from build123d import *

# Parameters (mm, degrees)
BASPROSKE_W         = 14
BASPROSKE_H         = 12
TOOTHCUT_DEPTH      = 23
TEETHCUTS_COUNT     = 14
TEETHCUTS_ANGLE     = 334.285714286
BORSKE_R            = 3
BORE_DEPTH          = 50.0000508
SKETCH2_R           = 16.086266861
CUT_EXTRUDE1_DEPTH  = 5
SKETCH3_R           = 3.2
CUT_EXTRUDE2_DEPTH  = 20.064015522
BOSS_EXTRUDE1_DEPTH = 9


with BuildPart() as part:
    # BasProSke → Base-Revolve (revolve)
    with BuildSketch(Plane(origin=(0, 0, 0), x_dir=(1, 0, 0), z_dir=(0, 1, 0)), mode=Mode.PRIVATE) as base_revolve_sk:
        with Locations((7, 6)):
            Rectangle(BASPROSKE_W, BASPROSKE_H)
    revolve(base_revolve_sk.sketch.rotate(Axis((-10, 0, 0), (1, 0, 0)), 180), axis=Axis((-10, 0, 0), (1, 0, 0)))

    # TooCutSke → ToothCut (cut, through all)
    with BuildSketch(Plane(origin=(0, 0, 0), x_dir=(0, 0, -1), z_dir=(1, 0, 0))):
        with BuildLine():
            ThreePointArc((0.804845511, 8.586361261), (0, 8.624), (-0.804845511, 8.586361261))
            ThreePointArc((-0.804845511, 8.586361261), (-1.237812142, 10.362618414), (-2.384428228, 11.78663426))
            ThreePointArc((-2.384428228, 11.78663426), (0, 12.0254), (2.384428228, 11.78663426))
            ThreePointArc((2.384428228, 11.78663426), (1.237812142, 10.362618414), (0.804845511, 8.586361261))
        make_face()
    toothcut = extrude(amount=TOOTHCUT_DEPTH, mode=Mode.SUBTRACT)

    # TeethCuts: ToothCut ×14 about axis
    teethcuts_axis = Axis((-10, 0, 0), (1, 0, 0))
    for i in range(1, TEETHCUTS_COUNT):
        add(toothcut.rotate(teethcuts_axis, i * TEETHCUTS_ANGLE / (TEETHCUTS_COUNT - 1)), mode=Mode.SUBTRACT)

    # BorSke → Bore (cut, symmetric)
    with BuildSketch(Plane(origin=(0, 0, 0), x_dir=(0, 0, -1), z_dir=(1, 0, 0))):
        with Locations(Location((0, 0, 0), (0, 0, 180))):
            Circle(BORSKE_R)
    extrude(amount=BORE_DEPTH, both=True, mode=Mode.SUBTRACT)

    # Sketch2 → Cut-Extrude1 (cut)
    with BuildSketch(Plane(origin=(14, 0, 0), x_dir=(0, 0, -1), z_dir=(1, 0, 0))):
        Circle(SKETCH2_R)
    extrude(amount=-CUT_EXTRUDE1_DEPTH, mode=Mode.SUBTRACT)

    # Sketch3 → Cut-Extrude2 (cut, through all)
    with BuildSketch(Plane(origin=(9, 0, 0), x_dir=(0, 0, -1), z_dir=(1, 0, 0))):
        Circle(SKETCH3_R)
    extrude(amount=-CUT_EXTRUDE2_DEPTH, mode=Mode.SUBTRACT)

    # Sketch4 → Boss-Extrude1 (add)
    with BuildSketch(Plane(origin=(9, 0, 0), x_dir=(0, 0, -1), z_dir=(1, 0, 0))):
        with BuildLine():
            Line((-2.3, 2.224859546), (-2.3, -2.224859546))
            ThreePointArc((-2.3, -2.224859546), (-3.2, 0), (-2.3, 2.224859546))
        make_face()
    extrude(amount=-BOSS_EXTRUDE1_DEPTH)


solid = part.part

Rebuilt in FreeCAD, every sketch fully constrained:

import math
import FreeCAD as App
import Part
import Sketcher
from FreeCAD import Vector
Q = App.Units.Quantity


def add_polygon(sketch, points):
    """Adds a closed chain of lines whose ends are joined by coincident constraints."""
    first, n = sketch.GeometryCount, len(points)
    for a, b in zip(points, points[1:] + points[:1]):
        sketch.addGeometry(Part.LineSegment(App.Vector(*a, 0), App.Vector(*b, 0)), False)
    for i in range(n):
        sketch.addConstraint(Sketcher.Constraint("Coincident", first + i, 2, first + (i + 1) % n, 1))

doc = App.newDocument("Part")
body = doc.addObject("PartDesign::Body", "Body")

sketch1 = doc.addObject("Sketcher::SketchObject", "Sketch")
body.addObject(sketch1)
sketch1.AttachmentSupport = (doc.XZ_Plane, [""])
sketch1.MapMode = "FlatFace"
add_polygon(sketch1, [(0, -12), (0, 0), (14, 0), (14, -12)])
sketch1.addConstraint(Sketcher.Constraint("Vertical", 0))
sketch1.addConstraint(Sketcher.Constraint("Horizontal", 1))
sketch1.addConstraint(Sketcher.Constraint("Vertical", 2))
sketch1.addConstraint(Sketcher.Constraint("Horizontal", 3))
sketch1.addConstraint(Sketcher.Constraint("Coincident", 0, 2, -1, 1))
sketch1.addConstraint(Sketcher.Constraint("DistanceX", 1, 1, 1, 2, Q("14 mm")))
sketch1.addConstraint(Sketcher.Constraint("DistanceY", 0, 1, 0, 2, Q("12 mm")))
revolution = doc.addObject("PartDesign::Revolution", "Revolution")
body.addObject(revolution)
revolution.Profile = sketch1
revolution.ReferenceAxis = (sketch1, ["H_Axis"])
revolution.Angle = 360

sketch2 = doc.addObject("Sketcher::SketchObject", "Sketch001")
body.addObject(sketch2)
sketch2.AttachmentSupport = (doc.YZ_Plane, [""])
sketch2.MapMode = "FlatFace"
sketch2.addGeometry(Part.ArcOfCircle(Part.Circle(Vector(0, 0, 0), Vector(0, 0, 1), 8.624), math.radians(-5.354993), math.radians(5.354993)), False)
sketch2.addGeometry(Part.ArcOfCircle(Part.Circle(Vector(8.503697, -5.004032, 0), Vector(0, 0, 1), 4.2), math.radians(38.587946), math.radians(88.872235)), False)
sketch2.addGeometry(Part.ArcOfCircle(Part.Circle(Vector(0, 0, 0), Vector(0, 0, 1), 12.0254), math.radians(-11.436551), math.radians(11.436551)), False)
sketch2.addGeometry(Part.ArcOfCircle(Part.Circle(Vector(8.503697, 5.004032, 0), Vector(0, 0, 1), 4.2), math.radians(-88.872235), math.radians(-38.587946)), False)
sketch2.addConstraint(Sketcher.Constraint("Coincident", 0, 1, 1, 2))
sketch2.addConstraint(Sketcher.Constraint("Coincident", 1, 1, 2, 1))
sketch2.addConstraint(Sketcher.Constraint("Coincident", 2, 2, 3, 2))
sketch2.addConstraint(Sketcher.Constraint("Coincident", 3, 1, 0, 2))
sketch2.addConstraint(Sketcher.Constraint("Coincident", 0, 3, -1, 1))
sketch2.addConstraint(Sketcher.Constraint("Coincident", 2, 3, -1, 1))
sketch2.addConstraint(Sketcher.Constraint("Equal", 1, 3))
sketch2.addConstraint(Sketcher.Constraint("Symmetric", 1, 3, 3, 3, -1))
sketch2.addConstraint(Sketcher.Constraint("Radius", 1, Q("4.2 mm")))
sketch2.addConstraint(Sketcher.Constraint("Radius", 0, Q("8.624 mm")))
sketch2.addConstraint(Sketcher.Constraint("Radius", 2, Q("12.0254 mm")))
sketch2.addConstraint(Sketcher.Constraint("DistanceY", 1, 3, -1, 1, Q("5.004032 mm")))
sketch2.addConstraint(Sketcher.Constraint("DistanceY", 1, 1, -1, 1, Q("2.384428 mm")))
pocket1 = doc.addObject("PartDesign::Pocket", "Pocket")
body.addObject(pocket1)
pocket1.Profile = sketch2
pocket1.Type = "ThroughAll"
pocket1.Reversed = True
doc.recompute()

polarpattern = doc.addObject("PartDesign::PolarPattern", "PolarPattern")
body.addObject(polarpattern)
polarpattern.Originals = [pocket1]
polarpattern.Axis = (doc.X_Axis, [""])
polarpattern.Angle = 360
polarpattern.Occurrences = 14
body.Tip = polarpattern

sketch3 = doc.addObject("Sketcher::SketchObject", "Sketch002")
body.addObject(sketch3)
sketch3.AttachmentSupport = (doc.YZ_Plane, [""])
sketch3.MapMode = "FlatFace"
sketch3.addGeometry(Part.Circle(Vector(0, 0, 0), Vector(0, 0, 1), 3), False)
sketch3.addConstraint(Sketcher.Constraint("Coincident", 0, 3, -1, 1))
sketch3.addConstraint(Sketcher.Constraint("Diameter", 0, Q("6 mm")))
pocket2 = doc.addObject("PartDesign::Pocket", "Pocket001")
body.addObject(pocket2)
pocket2.Profile = sketch3
pocket2.Length = 100.000102
pocket2.Midplane = True

sketch4 = doc.addObject("Sketcher::SketchObject", "Sketch003")
body.addObject(sketch4)
sketch4.AttachmentSupport = (doc.YZ_Plane, [""])
sketch4.MapMode = "FlatFace"
sketch4.AttachmentOffset = App.Placement(Vector(0, 0, 14), App.Rotation())
sketch4.addGeometry(Part.Circle(Vector(0, 0, 0), Vector(0, 0, 1), 16.086267), False)
sketch4.addConstraint(Sketcher.Constraint("Coincident", 0, 3, -1, 1))
sketch4.addConstraint(Sketcher.Constraint("Diameter", 0, Q("32.172534 mm")))
pocket3 = doc.addObject("PartDesign::Pocket", "Pocket002")
body.addObject(pocket3)
pocket3.Profile = sketch4
pocket3.Length = 5

sketch5 = doc.addObject("Sketcher::SketchObject", "Sketch004")
body.addObject(sketch5)
sketch5.AttachmentSupport = (doc.YZ_Plane, [""])
sketch5.MapMode = "FlatFace"
sketch5.AttachmentOffset = App.Placement(Vector(0, 0, 9), App.Rotation())
sketch5.addGeometry(Part.Circle(Vector(0, 0, 0), Vector(0, 0, 1), 3.2), False)
sketch5.addConstraint(Sketcher.Constraint("Coincident", 0, 3, -1, 1))
sketch5.addConstraint(Sketcher.Constraint("Diameter", 0, Q("6.4 mm")))
pocket4 = doc.addObject("PartDesign::Pocket", "Pocket003")
body.addObject(pocket4)
pocket4.Profile = sketch5
pocket4.Type = "ThroughAll"

sketch6 = doc.addObject("Sketcher::SketchObject", "Sketch005")
body.addObject(sketch6)
sketch6.AttachmentSupport = (doc.YZ_Plane, [""])
sketch6.MapMode = "FlatFace"
sketch6.AttachmentOffset = App.Placement(Vector(0, 0, 9), App.Rotation())
sketch6.addGeometry(Part.LineSegment(Vector(-2.22486, 2.3, 0), Vector(2.22486, 2.3, 0)), False)
sketch6.addGeometry(Part.ArcOfCircle(Part.Circle(Vector(0, 0, 0), Vector(0, 0, 1), 3.2), math.radians(45.951374), math.radians(134.048626)), False)
sketch6.addConstraint(Sketcher.Constraint("Coincident", 0, 1, 1, 2))
sketch6.addConstraint(Sketcher.Constraint("Coincident", 1, 1, 0, 2))
sketch6.addConstraint(Sketcher.Constraint("Horizontal", 0))
sketch6.addConstraint(Sketcher.Constraint("Coincident", 1, 3, -1, 1))
sketch6.addConstraint(Sketcher.Constraint("Radius", 1, Q("3.2 mm")))
sketch6.addConstraint(Sketcher.Constraint("DistanceY", -1, 1, 0, 1, Q("2.3 mm")))
pad1 = doc.addObject("PartDesign::Pad", "Pad")
body.addObject(pad1)
pad1.Profile = sketch6
pad1.Length = 9
pad1.Reversed = True

doc.recompute()
